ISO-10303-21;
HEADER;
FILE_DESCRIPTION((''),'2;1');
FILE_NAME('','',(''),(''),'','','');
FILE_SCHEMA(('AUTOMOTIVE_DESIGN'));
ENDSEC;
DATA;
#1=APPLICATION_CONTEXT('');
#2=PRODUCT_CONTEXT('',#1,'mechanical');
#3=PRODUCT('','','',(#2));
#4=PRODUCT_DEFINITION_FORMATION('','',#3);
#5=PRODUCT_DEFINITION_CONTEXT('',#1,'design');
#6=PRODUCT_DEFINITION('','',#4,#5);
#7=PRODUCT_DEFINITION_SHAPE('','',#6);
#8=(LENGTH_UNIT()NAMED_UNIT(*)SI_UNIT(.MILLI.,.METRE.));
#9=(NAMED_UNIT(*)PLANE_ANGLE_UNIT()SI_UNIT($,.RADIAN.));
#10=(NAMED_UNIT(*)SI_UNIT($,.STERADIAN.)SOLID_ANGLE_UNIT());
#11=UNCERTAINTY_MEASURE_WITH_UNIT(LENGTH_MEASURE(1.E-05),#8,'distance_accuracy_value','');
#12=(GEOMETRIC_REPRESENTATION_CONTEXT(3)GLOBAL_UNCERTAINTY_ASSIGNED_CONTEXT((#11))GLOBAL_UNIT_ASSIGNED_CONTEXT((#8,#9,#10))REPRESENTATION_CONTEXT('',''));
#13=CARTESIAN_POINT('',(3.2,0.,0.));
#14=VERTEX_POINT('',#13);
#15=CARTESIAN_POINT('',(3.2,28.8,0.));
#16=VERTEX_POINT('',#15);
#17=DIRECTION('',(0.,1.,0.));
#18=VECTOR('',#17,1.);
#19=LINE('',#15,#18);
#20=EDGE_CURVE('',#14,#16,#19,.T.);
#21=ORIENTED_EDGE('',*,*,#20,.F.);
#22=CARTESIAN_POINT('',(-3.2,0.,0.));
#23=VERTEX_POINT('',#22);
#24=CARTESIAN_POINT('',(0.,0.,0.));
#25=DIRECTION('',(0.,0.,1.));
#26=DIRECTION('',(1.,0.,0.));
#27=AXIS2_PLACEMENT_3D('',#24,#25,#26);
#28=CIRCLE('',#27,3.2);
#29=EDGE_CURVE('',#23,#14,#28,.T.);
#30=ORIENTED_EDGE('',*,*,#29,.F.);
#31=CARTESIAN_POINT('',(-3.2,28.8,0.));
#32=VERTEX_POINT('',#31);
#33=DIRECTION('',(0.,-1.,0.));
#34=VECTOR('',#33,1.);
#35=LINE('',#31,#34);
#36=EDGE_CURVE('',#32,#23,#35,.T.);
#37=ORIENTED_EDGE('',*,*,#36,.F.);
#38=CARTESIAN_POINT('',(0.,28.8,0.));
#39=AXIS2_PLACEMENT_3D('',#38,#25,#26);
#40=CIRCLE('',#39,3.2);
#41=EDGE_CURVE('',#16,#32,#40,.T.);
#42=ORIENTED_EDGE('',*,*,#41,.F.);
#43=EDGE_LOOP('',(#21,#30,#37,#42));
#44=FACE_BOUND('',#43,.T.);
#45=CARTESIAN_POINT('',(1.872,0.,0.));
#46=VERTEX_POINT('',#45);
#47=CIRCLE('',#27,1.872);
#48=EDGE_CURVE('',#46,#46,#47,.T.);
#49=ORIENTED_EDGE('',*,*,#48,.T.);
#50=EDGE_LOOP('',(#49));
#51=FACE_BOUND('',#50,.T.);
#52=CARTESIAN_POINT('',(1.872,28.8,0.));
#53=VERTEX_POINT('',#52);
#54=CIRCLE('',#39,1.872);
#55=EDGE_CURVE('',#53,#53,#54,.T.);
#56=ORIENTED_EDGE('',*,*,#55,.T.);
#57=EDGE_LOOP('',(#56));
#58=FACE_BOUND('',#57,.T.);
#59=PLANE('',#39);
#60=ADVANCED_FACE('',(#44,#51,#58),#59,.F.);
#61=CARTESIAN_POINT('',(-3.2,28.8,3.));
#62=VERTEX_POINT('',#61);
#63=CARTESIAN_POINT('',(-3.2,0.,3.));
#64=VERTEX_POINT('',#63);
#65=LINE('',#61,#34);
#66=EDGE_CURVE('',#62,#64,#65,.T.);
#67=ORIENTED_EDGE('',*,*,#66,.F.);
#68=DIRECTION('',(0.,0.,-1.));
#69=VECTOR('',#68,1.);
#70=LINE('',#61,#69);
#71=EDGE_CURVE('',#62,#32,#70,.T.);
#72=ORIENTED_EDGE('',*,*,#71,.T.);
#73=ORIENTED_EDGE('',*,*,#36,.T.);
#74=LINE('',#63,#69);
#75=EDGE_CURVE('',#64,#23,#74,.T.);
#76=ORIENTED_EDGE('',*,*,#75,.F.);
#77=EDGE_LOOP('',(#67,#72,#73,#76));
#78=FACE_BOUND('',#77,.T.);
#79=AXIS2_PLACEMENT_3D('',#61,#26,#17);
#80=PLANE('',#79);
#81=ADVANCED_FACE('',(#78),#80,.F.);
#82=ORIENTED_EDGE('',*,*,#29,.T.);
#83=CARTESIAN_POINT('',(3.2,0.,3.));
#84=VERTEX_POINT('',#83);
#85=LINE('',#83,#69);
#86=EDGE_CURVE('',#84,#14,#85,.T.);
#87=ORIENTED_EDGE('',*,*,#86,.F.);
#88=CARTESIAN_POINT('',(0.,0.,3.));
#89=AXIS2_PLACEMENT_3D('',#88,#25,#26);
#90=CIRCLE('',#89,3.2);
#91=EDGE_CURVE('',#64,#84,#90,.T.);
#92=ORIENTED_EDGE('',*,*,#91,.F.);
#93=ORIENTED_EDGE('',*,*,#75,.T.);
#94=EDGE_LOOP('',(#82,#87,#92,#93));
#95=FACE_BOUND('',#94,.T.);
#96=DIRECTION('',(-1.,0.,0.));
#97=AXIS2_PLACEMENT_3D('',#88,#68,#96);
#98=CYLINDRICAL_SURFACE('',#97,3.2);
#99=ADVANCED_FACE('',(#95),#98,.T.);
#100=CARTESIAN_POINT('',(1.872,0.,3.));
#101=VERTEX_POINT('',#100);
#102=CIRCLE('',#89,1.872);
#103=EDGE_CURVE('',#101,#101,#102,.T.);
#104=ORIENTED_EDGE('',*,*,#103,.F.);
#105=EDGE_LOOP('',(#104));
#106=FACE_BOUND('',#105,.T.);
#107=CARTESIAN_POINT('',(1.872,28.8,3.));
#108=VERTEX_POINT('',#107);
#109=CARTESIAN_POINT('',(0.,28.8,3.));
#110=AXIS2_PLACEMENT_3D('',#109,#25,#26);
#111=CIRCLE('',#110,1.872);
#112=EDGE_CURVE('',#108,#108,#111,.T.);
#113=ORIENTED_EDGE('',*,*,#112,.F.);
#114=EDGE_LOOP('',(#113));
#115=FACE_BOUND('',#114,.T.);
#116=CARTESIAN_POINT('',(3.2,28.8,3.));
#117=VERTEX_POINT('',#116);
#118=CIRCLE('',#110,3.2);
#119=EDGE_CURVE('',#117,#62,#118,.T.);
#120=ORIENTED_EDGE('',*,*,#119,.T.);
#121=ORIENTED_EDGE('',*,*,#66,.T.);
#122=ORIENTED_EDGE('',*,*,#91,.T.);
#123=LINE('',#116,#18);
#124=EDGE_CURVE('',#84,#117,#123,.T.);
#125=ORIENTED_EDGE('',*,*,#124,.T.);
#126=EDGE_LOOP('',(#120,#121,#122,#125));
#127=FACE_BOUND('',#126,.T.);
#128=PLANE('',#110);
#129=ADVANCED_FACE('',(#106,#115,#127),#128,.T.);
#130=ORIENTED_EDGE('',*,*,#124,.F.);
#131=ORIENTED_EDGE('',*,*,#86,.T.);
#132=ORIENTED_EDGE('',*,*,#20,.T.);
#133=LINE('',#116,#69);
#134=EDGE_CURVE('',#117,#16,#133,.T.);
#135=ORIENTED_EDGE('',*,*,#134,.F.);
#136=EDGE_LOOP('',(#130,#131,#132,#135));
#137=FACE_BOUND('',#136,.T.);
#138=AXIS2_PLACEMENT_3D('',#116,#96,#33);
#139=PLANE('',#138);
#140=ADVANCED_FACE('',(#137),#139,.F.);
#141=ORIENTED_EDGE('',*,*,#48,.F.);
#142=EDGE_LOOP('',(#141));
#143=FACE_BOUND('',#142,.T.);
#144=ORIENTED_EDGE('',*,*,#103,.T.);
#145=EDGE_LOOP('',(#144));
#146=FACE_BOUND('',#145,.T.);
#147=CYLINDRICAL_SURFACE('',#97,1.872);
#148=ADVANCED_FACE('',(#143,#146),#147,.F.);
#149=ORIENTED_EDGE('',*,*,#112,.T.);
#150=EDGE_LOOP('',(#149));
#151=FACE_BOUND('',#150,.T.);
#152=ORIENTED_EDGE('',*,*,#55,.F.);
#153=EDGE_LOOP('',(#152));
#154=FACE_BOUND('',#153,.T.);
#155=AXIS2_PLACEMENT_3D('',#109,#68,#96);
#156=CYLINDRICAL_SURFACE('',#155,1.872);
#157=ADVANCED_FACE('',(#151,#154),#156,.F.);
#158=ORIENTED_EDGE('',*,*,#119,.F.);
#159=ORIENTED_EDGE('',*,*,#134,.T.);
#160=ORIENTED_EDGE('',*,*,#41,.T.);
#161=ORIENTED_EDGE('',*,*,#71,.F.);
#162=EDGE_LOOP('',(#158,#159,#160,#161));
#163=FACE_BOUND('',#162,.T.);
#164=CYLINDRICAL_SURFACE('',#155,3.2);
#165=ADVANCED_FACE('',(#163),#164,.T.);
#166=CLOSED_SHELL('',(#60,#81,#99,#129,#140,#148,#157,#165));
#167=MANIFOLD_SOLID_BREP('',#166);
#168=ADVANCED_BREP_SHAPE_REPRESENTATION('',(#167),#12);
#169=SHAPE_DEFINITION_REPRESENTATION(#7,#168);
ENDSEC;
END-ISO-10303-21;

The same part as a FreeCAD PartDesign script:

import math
import FreeCAD as App
import Part
import Sketcher
from FreeCAD import Vector

doc = App.newDocument("Part")
params = doc.addObject("Spreadsheet::Sheet", "Params")
for row, (alias, value) in enumerate([
    ("sketch1_radius", "3.2 mm"),
    ("sketch1_height", "28.8 mm"),
    ("pad1_length", "3 mm"),
], start=1):
    params.set(f"A{row}", alias)
    params.set(f"B{row}", "=" + value)
    params.setAlias(f"B{row}", alias)

body = doc.addObject("PartDesign::Body", "Body")

# Sketch on XY plane
sketch1 = body.newObject("Sketcher::SketchObject", "Sketch")
sketch1.AttachmentSupport = (doc.getObject("XY_Plane"), [""])
sketch1.MapMode = "FlatFace"
sketch1.addGeometry([
    Part.LineSegment(Vector(-3.2, 28.8, 0), Vector(-3.2, 0, 0)),  # 0
    Part.ArcOfCircle(Part.Circle(Vector(0, 0, 0), Vector(0, 0, 1), 3.2), math.radians(180), math.radians(360)),  # 1
    Part.LineSegment(Vector(3.2, 0, 0), Vector(3.2, 28.8, 0)),  # 2
    Part.ArcOfCircle(Part.Circle(Vector(0, 28.8, 0), Vector(0, 0, 1), 3.2), math.radians(0), math.radians(180)),  # 3
    Part.Circle(Vector(0, 0, 0), Vector(0, 0, 1), 1.9),  # 4
    Part.Circle(Vector(0, 28.8, 0), Vector(0, 0, 1), 1.9),  # 5
], False)
sketch1.addConstraint([
    Sketcher.Constraint("Tangent", 0, 2, 1, 1),
    Sketcher.Constraint("Tangent", 1, 2, 2, 1),
    Sketcher.Constraint("Tangent", 2, 2, 3, 1),
    Sketcher.Constraint("Tangent", 3, 2, 0, 1),
    Sketcher.Constraint("Vertical", 0),
    Sketcher.Constraint("Vertical", 2),
    Sketcher.Constraint("Coincident", 1, 3, -1, 1),
    Sketcher.Constraint("Coincident", 4, 3, -1, 1),
    Sketcher.Constraint("Coincident", 5, 3, 3, 3),
    Sketcher.Constraint("Equal", 4, 5),
    Sketcher.Constraint("Radius", 1, 3.2),
    Sketcher.Constraint("Diameter", 4, 3.744),
    Sketcher.Constraint("DistanceY", 0, 2, 0, 1, 28.8),
])
sketch1.setExpression("Constraints[10]", "Params.sketch1_radius")
sketch1.setExpression("Constraints[12]", "Params.sketch1_height")
pad1 = body.newObject("PartDesign::Pad", "Pad")
pad1.Profile = sketch1
pad1.setExpression("Length", "Params.pad1_length")

doc.recompute()
